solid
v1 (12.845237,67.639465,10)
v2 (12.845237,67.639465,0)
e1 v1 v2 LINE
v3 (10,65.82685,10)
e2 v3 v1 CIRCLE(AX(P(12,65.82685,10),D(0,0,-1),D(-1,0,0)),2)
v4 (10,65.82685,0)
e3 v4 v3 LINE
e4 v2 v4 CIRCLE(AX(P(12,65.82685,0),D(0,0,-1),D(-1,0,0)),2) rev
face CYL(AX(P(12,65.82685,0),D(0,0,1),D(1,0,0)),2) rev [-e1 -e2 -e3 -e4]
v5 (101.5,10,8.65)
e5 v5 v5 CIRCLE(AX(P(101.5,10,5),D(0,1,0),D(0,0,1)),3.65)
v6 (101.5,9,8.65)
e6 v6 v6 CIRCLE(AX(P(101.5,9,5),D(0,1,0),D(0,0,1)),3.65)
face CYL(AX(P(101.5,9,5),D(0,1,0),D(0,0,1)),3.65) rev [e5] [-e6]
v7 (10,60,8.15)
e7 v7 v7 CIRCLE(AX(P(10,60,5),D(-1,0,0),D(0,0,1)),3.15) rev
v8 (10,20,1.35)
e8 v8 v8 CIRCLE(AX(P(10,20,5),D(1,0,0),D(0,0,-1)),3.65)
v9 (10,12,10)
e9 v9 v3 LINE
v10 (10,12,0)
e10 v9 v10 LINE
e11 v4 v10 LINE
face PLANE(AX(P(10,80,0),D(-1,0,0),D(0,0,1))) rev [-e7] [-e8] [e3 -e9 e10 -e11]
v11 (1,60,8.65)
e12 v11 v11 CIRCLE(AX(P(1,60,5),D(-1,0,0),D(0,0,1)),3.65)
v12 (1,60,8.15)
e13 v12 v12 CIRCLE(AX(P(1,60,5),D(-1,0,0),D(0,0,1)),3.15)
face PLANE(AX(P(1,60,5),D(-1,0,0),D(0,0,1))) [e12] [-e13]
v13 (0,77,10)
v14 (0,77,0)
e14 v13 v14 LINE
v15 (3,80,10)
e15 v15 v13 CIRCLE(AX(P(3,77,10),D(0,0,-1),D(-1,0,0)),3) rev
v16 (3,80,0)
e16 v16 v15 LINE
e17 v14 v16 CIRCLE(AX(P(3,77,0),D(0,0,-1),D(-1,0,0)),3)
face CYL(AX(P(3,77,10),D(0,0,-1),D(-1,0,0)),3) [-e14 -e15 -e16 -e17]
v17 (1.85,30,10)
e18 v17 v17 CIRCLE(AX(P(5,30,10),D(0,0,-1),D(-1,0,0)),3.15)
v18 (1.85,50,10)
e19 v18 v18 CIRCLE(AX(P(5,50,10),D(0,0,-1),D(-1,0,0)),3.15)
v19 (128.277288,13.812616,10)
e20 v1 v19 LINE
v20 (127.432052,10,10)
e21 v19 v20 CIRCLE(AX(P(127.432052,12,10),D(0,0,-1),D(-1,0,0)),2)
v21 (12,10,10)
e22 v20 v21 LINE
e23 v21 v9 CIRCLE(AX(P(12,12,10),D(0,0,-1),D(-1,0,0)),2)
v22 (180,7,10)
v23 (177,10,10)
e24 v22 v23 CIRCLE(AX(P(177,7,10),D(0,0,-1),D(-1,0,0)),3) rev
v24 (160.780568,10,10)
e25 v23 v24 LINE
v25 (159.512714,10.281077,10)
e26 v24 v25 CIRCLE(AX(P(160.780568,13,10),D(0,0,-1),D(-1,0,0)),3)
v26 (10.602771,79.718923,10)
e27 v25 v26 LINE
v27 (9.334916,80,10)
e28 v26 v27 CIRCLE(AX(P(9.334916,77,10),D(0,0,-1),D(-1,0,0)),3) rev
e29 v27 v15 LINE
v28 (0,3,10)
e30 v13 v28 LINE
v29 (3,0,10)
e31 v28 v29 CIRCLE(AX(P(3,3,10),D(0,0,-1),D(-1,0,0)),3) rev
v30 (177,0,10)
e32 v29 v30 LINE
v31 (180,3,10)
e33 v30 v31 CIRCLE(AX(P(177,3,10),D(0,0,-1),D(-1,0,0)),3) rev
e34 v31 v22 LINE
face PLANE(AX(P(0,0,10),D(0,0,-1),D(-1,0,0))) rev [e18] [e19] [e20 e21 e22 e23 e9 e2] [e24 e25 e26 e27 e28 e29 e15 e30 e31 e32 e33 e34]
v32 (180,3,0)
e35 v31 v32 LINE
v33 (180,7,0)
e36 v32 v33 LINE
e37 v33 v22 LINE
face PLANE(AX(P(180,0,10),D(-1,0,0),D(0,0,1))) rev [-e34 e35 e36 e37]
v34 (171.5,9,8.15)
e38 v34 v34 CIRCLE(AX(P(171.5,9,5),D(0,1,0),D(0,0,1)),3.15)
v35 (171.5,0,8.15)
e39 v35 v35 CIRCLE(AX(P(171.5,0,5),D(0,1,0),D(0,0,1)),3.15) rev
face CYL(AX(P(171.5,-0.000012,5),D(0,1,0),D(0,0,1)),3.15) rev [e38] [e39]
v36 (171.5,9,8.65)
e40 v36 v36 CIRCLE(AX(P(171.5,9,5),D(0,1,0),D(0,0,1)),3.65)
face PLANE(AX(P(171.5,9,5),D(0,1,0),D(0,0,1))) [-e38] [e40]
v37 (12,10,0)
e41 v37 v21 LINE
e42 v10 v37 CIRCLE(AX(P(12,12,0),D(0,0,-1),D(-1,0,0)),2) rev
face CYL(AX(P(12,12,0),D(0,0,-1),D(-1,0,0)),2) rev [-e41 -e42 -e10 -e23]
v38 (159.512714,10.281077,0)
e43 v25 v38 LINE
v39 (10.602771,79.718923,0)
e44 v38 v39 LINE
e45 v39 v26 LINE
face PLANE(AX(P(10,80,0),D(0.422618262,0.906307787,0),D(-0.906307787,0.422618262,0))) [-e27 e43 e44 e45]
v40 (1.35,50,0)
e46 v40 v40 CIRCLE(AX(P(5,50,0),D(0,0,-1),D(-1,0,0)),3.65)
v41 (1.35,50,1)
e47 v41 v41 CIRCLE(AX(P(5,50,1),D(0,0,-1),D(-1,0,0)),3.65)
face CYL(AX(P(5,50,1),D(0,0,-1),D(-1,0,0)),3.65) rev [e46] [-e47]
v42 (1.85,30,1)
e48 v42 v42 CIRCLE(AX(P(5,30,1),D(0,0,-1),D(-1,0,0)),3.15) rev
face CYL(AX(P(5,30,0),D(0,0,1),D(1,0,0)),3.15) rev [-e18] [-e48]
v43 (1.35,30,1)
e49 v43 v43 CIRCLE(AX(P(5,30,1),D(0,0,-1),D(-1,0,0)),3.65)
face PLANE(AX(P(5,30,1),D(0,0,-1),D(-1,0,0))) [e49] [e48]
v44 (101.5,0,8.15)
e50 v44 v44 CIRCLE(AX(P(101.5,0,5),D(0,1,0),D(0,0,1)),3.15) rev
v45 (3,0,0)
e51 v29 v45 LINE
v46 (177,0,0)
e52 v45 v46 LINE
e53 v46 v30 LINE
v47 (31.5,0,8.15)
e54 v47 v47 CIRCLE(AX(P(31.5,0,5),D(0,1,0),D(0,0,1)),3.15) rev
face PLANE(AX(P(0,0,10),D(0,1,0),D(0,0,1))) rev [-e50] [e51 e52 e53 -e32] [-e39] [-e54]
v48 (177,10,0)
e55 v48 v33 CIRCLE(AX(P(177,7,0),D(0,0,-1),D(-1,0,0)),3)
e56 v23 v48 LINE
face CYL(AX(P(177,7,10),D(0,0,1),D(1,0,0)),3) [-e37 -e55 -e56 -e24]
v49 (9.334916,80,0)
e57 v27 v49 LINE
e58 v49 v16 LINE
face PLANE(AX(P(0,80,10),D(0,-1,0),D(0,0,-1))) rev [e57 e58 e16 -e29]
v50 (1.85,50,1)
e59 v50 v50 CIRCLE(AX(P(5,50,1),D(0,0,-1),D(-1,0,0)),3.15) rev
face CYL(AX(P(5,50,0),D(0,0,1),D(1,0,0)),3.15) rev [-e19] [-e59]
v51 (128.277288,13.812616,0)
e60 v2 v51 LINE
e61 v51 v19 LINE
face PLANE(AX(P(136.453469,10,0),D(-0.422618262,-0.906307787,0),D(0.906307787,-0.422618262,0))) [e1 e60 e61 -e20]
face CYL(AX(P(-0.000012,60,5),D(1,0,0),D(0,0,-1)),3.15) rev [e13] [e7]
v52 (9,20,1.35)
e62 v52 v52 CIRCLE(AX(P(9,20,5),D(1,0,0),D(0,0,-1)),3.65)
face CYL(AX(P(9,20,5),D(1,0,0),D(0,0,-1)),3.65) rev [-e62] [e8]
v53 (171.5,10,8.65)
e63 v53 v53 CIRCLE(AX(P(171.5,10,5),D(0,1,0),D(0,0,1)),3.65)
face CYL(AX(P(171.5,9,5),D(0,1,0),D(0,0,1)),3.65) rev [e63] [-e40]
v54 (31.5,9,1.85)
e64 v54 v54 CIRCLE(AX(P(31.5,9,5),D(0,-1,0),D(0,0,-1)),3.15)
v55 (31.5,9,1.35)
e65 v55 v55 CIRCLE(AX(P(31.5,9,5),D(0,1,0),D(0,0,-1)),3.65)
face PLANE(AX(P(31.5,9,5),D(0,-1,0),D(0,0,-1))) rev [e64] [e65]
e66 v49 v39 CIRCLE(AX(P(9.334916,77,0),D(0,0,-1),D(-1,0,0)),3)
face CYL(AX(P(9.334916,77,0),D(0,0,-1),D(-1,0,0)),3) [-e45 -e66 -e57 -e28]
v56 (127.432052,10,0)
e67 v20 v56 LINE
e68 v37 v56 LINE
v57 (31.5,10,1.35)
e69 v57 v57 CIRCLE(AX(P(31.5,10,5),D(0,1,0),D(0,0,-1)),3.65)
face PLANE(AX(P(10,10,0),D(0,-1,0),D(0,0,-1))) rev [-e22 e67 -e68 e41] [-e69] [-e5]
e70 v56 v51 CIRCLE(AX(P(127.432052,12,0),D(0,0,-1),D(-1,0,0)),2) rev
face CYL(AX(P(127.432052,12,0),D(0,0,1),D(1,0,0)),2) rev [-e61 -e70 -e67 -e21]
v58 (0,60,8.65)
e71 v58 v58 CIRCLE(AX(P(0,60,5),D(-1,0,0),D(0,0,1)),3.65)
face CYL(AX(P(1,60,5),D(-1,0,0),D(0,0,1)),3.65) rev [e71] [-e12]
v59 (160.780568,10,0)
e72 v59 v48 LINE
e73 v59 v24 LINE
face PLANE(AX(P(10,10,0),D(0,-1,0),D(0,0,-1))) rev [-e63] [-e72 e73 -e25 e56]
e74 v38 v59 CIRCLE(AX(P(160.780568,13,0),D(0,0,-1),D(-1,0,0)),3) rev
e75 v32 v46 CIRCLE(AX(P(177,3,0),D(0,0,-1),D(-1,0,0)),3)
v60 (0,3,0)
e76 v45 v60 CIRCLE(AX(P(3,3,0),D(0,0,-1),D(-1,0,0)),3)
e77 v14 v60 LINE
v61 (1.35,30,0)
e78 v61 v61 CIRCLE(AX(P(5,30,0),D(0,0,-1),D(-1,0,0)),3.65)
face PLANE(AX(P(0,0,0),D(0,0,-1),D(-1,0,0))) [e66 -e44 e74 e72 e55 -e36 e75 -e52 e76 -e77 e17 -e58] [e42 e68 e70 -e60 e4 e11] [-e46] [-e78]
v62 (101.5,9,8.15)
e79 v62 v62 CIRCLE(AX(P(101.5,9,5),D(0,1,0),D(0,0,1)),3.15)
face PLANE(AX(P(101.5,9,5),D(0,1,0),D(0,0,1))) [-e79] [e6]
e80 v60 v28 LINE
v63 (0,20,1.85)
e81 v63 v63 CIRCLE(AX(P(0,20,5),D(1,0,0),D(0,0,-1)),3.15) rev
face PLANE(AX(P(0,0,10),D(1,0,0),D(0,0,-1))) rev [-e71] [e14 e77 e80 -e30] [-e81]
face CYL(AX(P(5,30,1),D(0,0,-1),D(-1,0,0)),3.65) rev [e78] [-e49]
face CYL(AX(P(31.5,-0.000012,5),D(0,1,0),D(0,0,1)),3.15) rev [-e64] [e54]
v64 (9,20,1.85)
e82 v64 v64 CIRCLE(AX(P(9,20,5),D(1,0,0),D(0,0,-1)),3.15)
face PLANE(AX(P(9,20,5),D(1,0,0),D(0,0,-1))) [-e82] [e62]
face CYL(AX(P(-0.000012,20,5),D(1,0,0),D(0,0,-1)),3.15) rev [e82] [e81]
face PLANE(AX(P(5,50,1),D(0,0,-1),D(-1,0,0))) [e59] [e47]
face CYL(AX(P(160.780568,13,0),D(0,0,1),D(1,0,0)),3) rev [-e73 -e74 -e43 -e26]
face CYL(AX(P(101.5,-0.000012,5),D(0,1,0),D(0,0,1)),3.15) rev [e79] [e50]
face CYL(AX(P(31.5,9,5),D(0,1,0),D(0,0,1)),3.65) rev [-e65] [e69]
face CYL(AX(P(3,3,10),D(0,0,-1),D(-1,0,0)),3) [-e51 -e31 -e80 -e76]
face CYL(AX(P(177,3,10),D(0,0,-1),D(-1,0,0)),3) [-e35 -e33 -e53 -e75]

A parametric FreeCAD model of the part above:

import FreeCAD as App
import Part
import Sketcher

V = App.Vector
Q = App.Units.Quantity


def edges_at(feature, points):
    """Names of the edges that pass closest to the given points."""
    edges = feature.Shape.Edges
    near = lambda p: min(range(len(edges)), key=lambda i: edges[i].distToShape(Part.Vertex(*p))[0])
    return sorted({f"Edge{near(p) + 1}" for p in points})


def add_polygon(sketch, points):
    """Adds a closed chain of lines whose ends are joined by coincident constraints."""
    first, n = sketch.GeometryCount, len(points)
    for a, b in zip(points, points[1:] + points[:1]):
        sketch.addGeometry(Part.LineSegment(App.Vector(*a, 0), App.Vector(*b, 0)), False)
    for i in range(n):
        sketch.addConstraint(Sketcher.Constraint("Coincident", first + i, 2, first + (i + 1) % n, 1))

doc = App.newDocument("Part")
body = doc.addObject("PartDesign::Body", "Body")

# Sketch on XY plane
sketch1 = body.newObject("Sketcher::SketchObject", "Sketch")
sketch1.AttachmentSupport = (doc.getObject("XY_Plane"), [""])
sketch1.MapMode = "FlatFace"
add_polygon(sketch1, [(0, 80), (0, 0), (180, 0), (180, 80)])  # lines 0-3
sketch1.addConstraint(Sketcher.Constraint("Vertical", 0))
sketch1.addConstraint(Sketcher.Constraint("Horizontal", 1))
sketch1.addConstraint(Sketcher.Constraint("Vertical", 2))
sketch1.addConstraint(Sketcher.Constraint("Horizontal", 3))
sketch1.addConstraint(Sketcher.Constraint("Coincident", 0, 2, -1, 1))
sketch1.addConstraint(Sketcher.Constraint("DistanceX", 1, 1, 1, 2, 180.0))
sketch1.addConstraint(Sketcher.Constraint("DistanceY", 0, 2, 0, 1, 80.0))
pad1 = body.newObject("PartDesign::Pad", "Pad")
pad1.Profile = sketch1
pad1.Length = 10

# Sketch on XY plane
sketch2 = body.newObject("Sketcher::SketchObject", "Sketch001")
sketch2.AttachmentSupport = (doc.getObject("XY_Plane"), [""])
sketch2.MapMode = "FlatFace"
sketch2.AttachmentOffset = App.Placement(V(0, 0, 10), App.Rotation())
add_polygon(sketch2, [(10, 80), (10, 10), (180, 10), (180, 80)])  # lines 0-3
sketch2.addConstraint(Sketcher.Constraint("Vertical", 0))
sketch2.addConstraint(Sketcher.Constraint("Horizontal", 1))
sketch2.addConstraint(Sketcher.Constraint("Vertical", 2))
sketch2.addConstraint(Sketcher.Constraint("Horizontal", 3))
sketch2.addConstraint(Sketcher.Constraint("DistanceX", 1, 1, 1, 2, 170.0))
sketch2.addConstraint(Sketcher.Constraint("DistanceY", 0, 2, 0, 1, 70.0))
sketch2.addConstraint(Sketcher.Constraint("DistanceX", -1, 1, 0, 2, 10.0))
sketch2.addConstraint(Sketcher.Constraint("DistanceY", -1, 1, 0, 2, 10.0))
pocket1 = body.newObject("PartDesign::Pocket", "Pocket")
pocket1.Profile = sketch2
pocket1.Type = "ThroughAll"
pocket1.Midplane = True

# Sketch on XY plane
sketch3 = body.newObject("Sketcher::SketchObject", "Sketch002")
sketch3.AttachmentSupport = (doc.getObject("XY_Plane"), [""])
sketch3.MapMode = "FlatFace"
sketch3.AttachmentOffset = App.Placement(V(0, 0, 10), App.Rotation())
add_polygon(sketch3, [(160, 10), (10, 80), (10, 69), (136, 10)])  # lines 0-3
sketch3.addConstraint(Sketcher.Constraint("Vertical", 1))
sketch3.addConstraint(Sketcher.Constraint("Horizontal", 3))
sketch3.addConstraint(Sketcher.Constraint("Parallel", 0, 2))
sketch3.addConstraint(Sketcher.Constraint("Angle", 0, Q("155 deg")))
sketch3.addConstraint(Sketcher.Constraint("DistanceX", -1, 1, 0, 2, 10.0))
sketch3.addConstraint(Sketcher.Constraint("DistanceY", -1, 1, 0, 2, 80.0))
sketch3.addConstraint(Sketcher.Constraint("DistanceY", -1, 1, 2, 2, 10.0))
sketch3.addConstraint(Sketcher.Constraint("DistanceY", 1, 2, 1, 1, 11.033779))
pad2 = body.newObject("PartDesign::Pad", "Pad001")
pad2.Profile = sketch3
pad2.Length = 10
pad2.Reversed = True

# Sketch on XZ plane
sketch4 = body.newObject("Sketcher::SketchObject", "Sketch003")
sketch4.AttachmentSupport = (doc.getObject("XZ_Plane"), [""])
sketch4.MapMode = "FlatFace"
sketch4.addGeometry(Part.Circle(V(101.5, 5, 0), V(0, 0, 1), 3.1), False)
sketch4.addConstraint(Sketcher.Constraint("Diameter", 0, 6.3))
sketch4.addConstraint(Sketcher.Constraint("DistanceY", -1, 1, 0, 3, 5.0))
sketch4.addConstraint(Sketcher.Constraint("DistanceX", -1, 1, 0, 3, 101.5))
pocket2 = body.newObject("PartDesign::Pocket", "Pocket001")
pocket2.Profile = sketch4
pocket2.Type = "UpToFirst"

# Sketch on XZ plane
sketch5 = body.newObject("Sketcher::SketchObject", "Sketch004")
sketch5.AttachmentSupport = (doc.getObject("XZ_Plane"), [""])
sketch5.MapMode = "FlatFace"
sketch5.addGeometry(Part.Circle(V(171.5, 5, 0), V(0, 0, 1), 3.1), False)
sketch5.addConstraint(Sketcher.Constraint("Diameter", 0, 6.3))
sketch5.addConstraint(Sketcher.Constraint("DistanceY", -1, 1, 0, 3, 5.0))
sketch5.addConstraint(Sketcher.Constraint("DistanceX", -1, 1, 0, 3, 171.5))
pocket3 = body.newObject("PartDesign::Pocket", "Pocket002")
pocket3.Profile = sketch5
pocket3.Type = "UpToFirst"

# Sketch on XZ plane
sketch6 = body.newObject("Sketcher::SketchObject", "Sketch005")
sketch6.AttachmentSupport = (doc.getObject("XZ_Plane"), [""])
sketch6.MapMode = "FlatFace"
sketch6.addGeometry(Part.Circle(V(31.5, 5, 0), V(0, 0, 1), 3.1), False)
sketch6.addConstraint(Sketcher.Constraint("Diameter", 0, 6.3))
sketch6.addConstraint(Sketcher.Constraint("DistanceY", -1, 1, 0, 3, 5.0))
sketch6.addConstraint(Sketcher.Constraint("DistanceX", -1, 1, 0, 3, 31.5))
pocket4 = body.newObject("PartDesign::Pocket", "Pocket003")
pocket4.Profile = sketch6
pocket4.Type = "UpToFirst"

# Sketch on XZ plane
sketch7 = body.newObject("Sketcher::SketchObject", "Sketch006")
sketch7.AttachmentSupport = (doc.getObject("XZ_Plane"), [""])
sketch7.MapMode = "FlatFace"
sketch7.addGeometry(Part.Circle(V(101.5, 5, 0), V(0, 0, 1), 3.1), False)
sketch7.addGeometry(Part.Circle(V(171.5, 5, 0), V(0, 0, 1), 3.1), False)
sketch7.addGeometry(Part.Circle(V(31.5, 5, 0), V(0, 0, 1), 3.1), False)
sketch7.addConstraint(Sketcher.Constraint("Equal", 0, 1))
sketch7.addConstraint(Sketcher.Constraint("Equal", 1, 2))
sketch7.addConstraint(Sketcher.Constraint("Horizontal", 0, 3, 1, 3))
sketch7.addConstraint(Sketcher.Constraint("Horizontal", 1, 3, 2, 3))
sketch7.addConstraint(Sketcher.Constraint("Diameter", 0, 6.3))
sketch7.addConstraint(Sketcher.Constraint("DistanceY", -1, 1, 0, 3, 5.0))
sketch7.addConstraint(Sketcher.Constraint("DistanceX", 0, 3, 1, 3, 70.0))
sketch7.addConstraint(Sketcher.Constraint("DistanceX", 2, 3, 0, 3, 70.0))
sketch7.addConstraint(Sketcher.Constraint("DistanceX", -1, 1, 0, 3, 101.5))
pocket5 = body.newObject("PartDesign::Pocket", "Pocket004")
pocket5.Profile = sketch7
pocket5.Length = 1
pocket5.Reversed = True

# Sketch on XZ plane
sketch8 = body.newObject("Sketcher::SketchObject", "Sketch007")
sketch8.AttachmentSupport = (doc.getObject("XZ_Plane"), [""])
sketch8.MapMode = "FlatFace"
sketch8.AttachmentOffset = App.Placement(V(0, 0, -10), App.Rotation())
sketch8.addGeometry(Part.Circle(V(101.5, 5, 0), V(0, 0, 1), 3.6), False)
sketch8.addGeometry(Part.Circle(V(171.5, 5, 0), V(0, 0, 1), 3.6), False)
sketch8.addGeometry(Part.Circle(V(31.5, 5, 0), V(0, 0, 1), 3.6), False)
sketch8.addConstraint(Sketcher.Constraint("Equal", 0, 1))
sketch8.addConstraint(Sketcher.Constraint("Equal", 1, 2))
sketch8.addConstraint(Sketcher.Constraint("Horizontal", 0, 3, 1, 3))
sketch8.addConstraint(Sketcher.Constraint("Horizontal", 1, 3, 2, 3))
sketch8.addConstraint(Sketcher.Constraint("Diameter", 0, 7.3))
sketch8.addConstraint(Sketcher.Constraint("DistanceY", -1, 1, 0, 3, 5.0))
sketch8.addConstraint(Sketcher.Constraint("DistanceX", 0, 3, 1, 3, 70.0))
sketch8.addConstraint(Sketcher.Constraint("DistanceX", 2, 3, 0, 3, 70.0))
sketch8.addConstraint(Sketcher.Constraint("DistanceX", -1, 1, 0, 3, 101.5))
pocket6 = body.newObject("PartDesign::Pocket", "Pocket005")
pocket6.Profile = sketch8
pocket6.Length = 1
pocket6.Reversed = True

# Sketch on YZ plane
sketch9 = body.newObject("Sketcher::SketchObject", "Sketch008")
sketch9.AttachmentSupport = (doc.getObject("YZ_Plane"), [""])
sketch9.MapMode = "FlatFace"
sketch9.addGeometry(Part.Circle(V(60, 5, 0), V(0, 0, 1), 3.1), False)
sketch9.addConstraint(Sketcher.Constraint("Diameter", 0, 6.3))
sketch9.addConstraint(Sketcher.Constraint("DistanceX", -1, 1, 0, 3, 60.0))
sketch9.addConstraint(Sketcher.Constraint("DistanceY", -1, 1, 0, 3, 5.0))
pocket7 = body.newObject("PartDesign::Pocket", "Pocket006")
pocket7.Profile = sketch9
pocket7.Type = "UpToFirst"
pocket7.Reversed = True

# Sketch on YZ plane
sketch10 = body.newObject("Sketcher::SketchObject", "Sketch009")
sketch10.AttachmentSupport = (doc.getObject("YZ_Plane"), [""])
sketch10.MapMode = "FlatFace"
sketch10.addGeometry(Part.Circle(V(20, 5, 0), V(0, 0, 1), 3.1), False)
sketch10.addConstraint(Sketcher.Constraint("Diameter", 0, 6.3))
sketch10.addConstraint(Sketcher.Constraint("DistanceX", -1, 1, 0, 3, 20.0))
sketch10.addConstraint(Sketcher.Constraint("DistanceY", -1, 1, 0, 3, 5.0))
pocket8 = body.newObject("PartDesign::Pocket", "Pocket007")
pocket8.Profile = sketch10
pocket8.Type = "UpToFirst"
pocket8.Reversed = True

# Sketch on YZ plane
sketch11 = body.newObject("Sketcher::SketchObject", "Sketch010")
sketch11.AttachmentSupport = (doc.getObject("YZ_Plane"), [""])
sketch11.MapMode = "FlatFace"
sketch11.addGeometry(Part.Circle(V(60, 5, 0), V(0, 0, 1), 3.1), False)
sketch11.addGeometry(Part.Circle(V(20, 5, 0), V(0, 0, 1), 3.1), False)
sketch11.addConstraint(Sketcher.Constraint("Equal", 0, 1))
sketch11.addConstraint(Sketcher.Constraint("Horizontal", 0, 3, 1, 3))
sketch11.addConstraint(Sketcher.Constraint("Diameter", 0, 6.3))
sketch11.addConstraint(Sketcher.Constraint("DistanceX", -1, 1, 0, 3, 60.0))
sketch11.addConstraint(Sketcher.Constraint("DistanceY", -1, 1, 0, 3, 5.0))
sketch11.addConstraint(Sketcher.Constraint("DistanceX", -1, 1, 1, 3, 20.0))
pocket9 = body.newObject("PartDesign::Pocket", "Pocket008")
pocket9.Profile = sketch11
pocket9.Length = 1

# Sketch on YZ plane
sketch12 = body.newObject("Sketcher::SketchObject", "Sketch011")
sketch12.AttachmentSupport = (doc.getObject("YZ_Plane"), [""])
sketch12.MapMode = "FlatFace"
sketch12.addGeometry(Part.Circle(V(60, 5, 0), V(0, 0, 1), 3.6), False)
sketch12.addConstraint(Sketcher.Constraint("Diameter", 0, 7.3))
sketch12.addConstraint(Sketcher.Constraint("DistanceX", -1, 1, 0, 3, 60.0))
sketch12.addConstraint(Sketcher.Constraint("DistanceY", -1, 1, 0, 3, 5.0))
pocket10 = body.newObject("PartDesign::Pocket", "Pocket009")
pocket10.Profile = sketch12
pocket10.Length = 1
pocket10.Reversed = True

# Sketch on YZ plane
sketch13 = body.newObject("Sketcher::SketchObject", "Sketch012")
sketch13.AttachmentSupport = (doc.getObject("YZ_Plane"), [""])
sketch13.MapMode = "FlatFace"
sketch13.AttachmentOffset = App.Placement(V(0, 0, 10), App.Rotation())
sketch13.addGeometry(Part.Circle(V(20, 5, 0), V(0, 0, 1), 3.6), False)
sketch13.addConstraint(Sketcher.Constraint("Diameter", 0, 7.3))
sketch13.addConstraint(Sketcher.Constraint("DistanceX", -1, 1, 0, 3, 20.0))
sketch13.addConstraint(Sketcher.Constraint("DistanceY", -1, 1, 0, 3, 5.0))
pocket11 = body.newObject("PartDesign::Pocket", "Pocket010")
pocket11.Profile = sketch13
pocket11.Length = 1
doc.recompute()

fillet = body.newObject("PartDesign::Fillet", "Fillet")
fillet.Base = (pocket11, edges_at(pocket11, [(10, 10, 5), (10, 68.966, 5), (136.453, 10, 5)]))
fillet.Radius = 2
doc.recompute()

fillet2 = body.newObject("PartDesign::Fillet", "Fillet001")
fillet2.Base = (fillet, edges_at(fillet, [
    (10, 80, 5),
    (180, 10, 5),
    (160.115, 10, 5),
    (0, 80, 5),
    (180, 0, 5),
    (0, 0, 5),
]))
fillet2.Radius = 3

# Sketch on XY plane
sketch14 = body.newObject("Sketcher::SketchObject", "Sketch013")
sketch14.AttachmentSupport = (doc.getObject("XY_Plane"), [""])
sketch14.MapMode = "FlatFace"
sketch14.AttachmentOffset = App.Placement(V(0, 0, 10), App.Rotation())
sketch14.addGeometry(Part.Circle(V(5, 50, 0), V(0, 0, 1), 3.1), False)
sketch14.addGeometry(Part.Circle(V(5, 30, 0), V(0, 0, 1), 3.1), False)
sketch14.addConstraint(Sketcher.Constraint("Equal", 0, 1))
sketch14.addConstraint(Sketcher.Constraint("Vertical", 0, 3, 1, 3))
sketch14.addConstraint(Sketcher.Constraint("Diameter", 0, 6.3))
sketch14.addConstraint(Sketcher.Constraint("DistanceX", -1, 1, 0, 3, 5.0))
sketch14.addConstraint(Sketcher.Constraint("DistanceY", -1, 1, 0, 3, 50.0))
sketch14.addConstraint(Sketcher.Constraint("DistanceY", -1, 1, 1, 3, 30.0))
pocket12 = body.newObject("PartDesign::Pocket", "Pocket011")
pocket12.Profile = sketch14
pocket12.Type = "ThroughAll"
pocket12.Midplane = True

# Sketch on XY plane
sketch15 = body.newObject("Sketcher::SketchObject", "Sketch014")
sketch15.AttachmentSupport = (doc.getObject("XY_Plane"), [""])
sketch15.MapMode = "FlatFace"
sketch15.addGeometry(Part.Circle(V(5, 50, 0), V(0, 0, 1), 3.6), False)
sketch15.addGeometry(Part.Circle(V(5, 30, 0), V(0, 0, 1), 3.6), False)
sketch15.addConstraint(Sketcher.Constraint("Equal", 0, 1))
sketch15.addConstraint(Sketcher.Constraint("Vertical", 0, 3, 1, 3))
sketch15.addConstraint(Sketcher.Constraint("Diameter", 0, 7.3))
sketch15.addConstraint(Sketcher.Constraint("DistanceX", -1, 1, 0, 3, 5.0))
sketch15.addConstraint(Sketcher.Constraint("DistanceY", -1, 1, 0, 3, 50.0))
sketch15.addConstraint(Sketcher.Constraint("DistanceY", -1, 1, 1, 3, 30.0))
pocket13 = body.newObject("PartDesign::Pocket", "Pocket012")
pocket13.Profile = sketch15
pocket13.Length = 1
pocket13.Reversed = True

doc.recompute()
